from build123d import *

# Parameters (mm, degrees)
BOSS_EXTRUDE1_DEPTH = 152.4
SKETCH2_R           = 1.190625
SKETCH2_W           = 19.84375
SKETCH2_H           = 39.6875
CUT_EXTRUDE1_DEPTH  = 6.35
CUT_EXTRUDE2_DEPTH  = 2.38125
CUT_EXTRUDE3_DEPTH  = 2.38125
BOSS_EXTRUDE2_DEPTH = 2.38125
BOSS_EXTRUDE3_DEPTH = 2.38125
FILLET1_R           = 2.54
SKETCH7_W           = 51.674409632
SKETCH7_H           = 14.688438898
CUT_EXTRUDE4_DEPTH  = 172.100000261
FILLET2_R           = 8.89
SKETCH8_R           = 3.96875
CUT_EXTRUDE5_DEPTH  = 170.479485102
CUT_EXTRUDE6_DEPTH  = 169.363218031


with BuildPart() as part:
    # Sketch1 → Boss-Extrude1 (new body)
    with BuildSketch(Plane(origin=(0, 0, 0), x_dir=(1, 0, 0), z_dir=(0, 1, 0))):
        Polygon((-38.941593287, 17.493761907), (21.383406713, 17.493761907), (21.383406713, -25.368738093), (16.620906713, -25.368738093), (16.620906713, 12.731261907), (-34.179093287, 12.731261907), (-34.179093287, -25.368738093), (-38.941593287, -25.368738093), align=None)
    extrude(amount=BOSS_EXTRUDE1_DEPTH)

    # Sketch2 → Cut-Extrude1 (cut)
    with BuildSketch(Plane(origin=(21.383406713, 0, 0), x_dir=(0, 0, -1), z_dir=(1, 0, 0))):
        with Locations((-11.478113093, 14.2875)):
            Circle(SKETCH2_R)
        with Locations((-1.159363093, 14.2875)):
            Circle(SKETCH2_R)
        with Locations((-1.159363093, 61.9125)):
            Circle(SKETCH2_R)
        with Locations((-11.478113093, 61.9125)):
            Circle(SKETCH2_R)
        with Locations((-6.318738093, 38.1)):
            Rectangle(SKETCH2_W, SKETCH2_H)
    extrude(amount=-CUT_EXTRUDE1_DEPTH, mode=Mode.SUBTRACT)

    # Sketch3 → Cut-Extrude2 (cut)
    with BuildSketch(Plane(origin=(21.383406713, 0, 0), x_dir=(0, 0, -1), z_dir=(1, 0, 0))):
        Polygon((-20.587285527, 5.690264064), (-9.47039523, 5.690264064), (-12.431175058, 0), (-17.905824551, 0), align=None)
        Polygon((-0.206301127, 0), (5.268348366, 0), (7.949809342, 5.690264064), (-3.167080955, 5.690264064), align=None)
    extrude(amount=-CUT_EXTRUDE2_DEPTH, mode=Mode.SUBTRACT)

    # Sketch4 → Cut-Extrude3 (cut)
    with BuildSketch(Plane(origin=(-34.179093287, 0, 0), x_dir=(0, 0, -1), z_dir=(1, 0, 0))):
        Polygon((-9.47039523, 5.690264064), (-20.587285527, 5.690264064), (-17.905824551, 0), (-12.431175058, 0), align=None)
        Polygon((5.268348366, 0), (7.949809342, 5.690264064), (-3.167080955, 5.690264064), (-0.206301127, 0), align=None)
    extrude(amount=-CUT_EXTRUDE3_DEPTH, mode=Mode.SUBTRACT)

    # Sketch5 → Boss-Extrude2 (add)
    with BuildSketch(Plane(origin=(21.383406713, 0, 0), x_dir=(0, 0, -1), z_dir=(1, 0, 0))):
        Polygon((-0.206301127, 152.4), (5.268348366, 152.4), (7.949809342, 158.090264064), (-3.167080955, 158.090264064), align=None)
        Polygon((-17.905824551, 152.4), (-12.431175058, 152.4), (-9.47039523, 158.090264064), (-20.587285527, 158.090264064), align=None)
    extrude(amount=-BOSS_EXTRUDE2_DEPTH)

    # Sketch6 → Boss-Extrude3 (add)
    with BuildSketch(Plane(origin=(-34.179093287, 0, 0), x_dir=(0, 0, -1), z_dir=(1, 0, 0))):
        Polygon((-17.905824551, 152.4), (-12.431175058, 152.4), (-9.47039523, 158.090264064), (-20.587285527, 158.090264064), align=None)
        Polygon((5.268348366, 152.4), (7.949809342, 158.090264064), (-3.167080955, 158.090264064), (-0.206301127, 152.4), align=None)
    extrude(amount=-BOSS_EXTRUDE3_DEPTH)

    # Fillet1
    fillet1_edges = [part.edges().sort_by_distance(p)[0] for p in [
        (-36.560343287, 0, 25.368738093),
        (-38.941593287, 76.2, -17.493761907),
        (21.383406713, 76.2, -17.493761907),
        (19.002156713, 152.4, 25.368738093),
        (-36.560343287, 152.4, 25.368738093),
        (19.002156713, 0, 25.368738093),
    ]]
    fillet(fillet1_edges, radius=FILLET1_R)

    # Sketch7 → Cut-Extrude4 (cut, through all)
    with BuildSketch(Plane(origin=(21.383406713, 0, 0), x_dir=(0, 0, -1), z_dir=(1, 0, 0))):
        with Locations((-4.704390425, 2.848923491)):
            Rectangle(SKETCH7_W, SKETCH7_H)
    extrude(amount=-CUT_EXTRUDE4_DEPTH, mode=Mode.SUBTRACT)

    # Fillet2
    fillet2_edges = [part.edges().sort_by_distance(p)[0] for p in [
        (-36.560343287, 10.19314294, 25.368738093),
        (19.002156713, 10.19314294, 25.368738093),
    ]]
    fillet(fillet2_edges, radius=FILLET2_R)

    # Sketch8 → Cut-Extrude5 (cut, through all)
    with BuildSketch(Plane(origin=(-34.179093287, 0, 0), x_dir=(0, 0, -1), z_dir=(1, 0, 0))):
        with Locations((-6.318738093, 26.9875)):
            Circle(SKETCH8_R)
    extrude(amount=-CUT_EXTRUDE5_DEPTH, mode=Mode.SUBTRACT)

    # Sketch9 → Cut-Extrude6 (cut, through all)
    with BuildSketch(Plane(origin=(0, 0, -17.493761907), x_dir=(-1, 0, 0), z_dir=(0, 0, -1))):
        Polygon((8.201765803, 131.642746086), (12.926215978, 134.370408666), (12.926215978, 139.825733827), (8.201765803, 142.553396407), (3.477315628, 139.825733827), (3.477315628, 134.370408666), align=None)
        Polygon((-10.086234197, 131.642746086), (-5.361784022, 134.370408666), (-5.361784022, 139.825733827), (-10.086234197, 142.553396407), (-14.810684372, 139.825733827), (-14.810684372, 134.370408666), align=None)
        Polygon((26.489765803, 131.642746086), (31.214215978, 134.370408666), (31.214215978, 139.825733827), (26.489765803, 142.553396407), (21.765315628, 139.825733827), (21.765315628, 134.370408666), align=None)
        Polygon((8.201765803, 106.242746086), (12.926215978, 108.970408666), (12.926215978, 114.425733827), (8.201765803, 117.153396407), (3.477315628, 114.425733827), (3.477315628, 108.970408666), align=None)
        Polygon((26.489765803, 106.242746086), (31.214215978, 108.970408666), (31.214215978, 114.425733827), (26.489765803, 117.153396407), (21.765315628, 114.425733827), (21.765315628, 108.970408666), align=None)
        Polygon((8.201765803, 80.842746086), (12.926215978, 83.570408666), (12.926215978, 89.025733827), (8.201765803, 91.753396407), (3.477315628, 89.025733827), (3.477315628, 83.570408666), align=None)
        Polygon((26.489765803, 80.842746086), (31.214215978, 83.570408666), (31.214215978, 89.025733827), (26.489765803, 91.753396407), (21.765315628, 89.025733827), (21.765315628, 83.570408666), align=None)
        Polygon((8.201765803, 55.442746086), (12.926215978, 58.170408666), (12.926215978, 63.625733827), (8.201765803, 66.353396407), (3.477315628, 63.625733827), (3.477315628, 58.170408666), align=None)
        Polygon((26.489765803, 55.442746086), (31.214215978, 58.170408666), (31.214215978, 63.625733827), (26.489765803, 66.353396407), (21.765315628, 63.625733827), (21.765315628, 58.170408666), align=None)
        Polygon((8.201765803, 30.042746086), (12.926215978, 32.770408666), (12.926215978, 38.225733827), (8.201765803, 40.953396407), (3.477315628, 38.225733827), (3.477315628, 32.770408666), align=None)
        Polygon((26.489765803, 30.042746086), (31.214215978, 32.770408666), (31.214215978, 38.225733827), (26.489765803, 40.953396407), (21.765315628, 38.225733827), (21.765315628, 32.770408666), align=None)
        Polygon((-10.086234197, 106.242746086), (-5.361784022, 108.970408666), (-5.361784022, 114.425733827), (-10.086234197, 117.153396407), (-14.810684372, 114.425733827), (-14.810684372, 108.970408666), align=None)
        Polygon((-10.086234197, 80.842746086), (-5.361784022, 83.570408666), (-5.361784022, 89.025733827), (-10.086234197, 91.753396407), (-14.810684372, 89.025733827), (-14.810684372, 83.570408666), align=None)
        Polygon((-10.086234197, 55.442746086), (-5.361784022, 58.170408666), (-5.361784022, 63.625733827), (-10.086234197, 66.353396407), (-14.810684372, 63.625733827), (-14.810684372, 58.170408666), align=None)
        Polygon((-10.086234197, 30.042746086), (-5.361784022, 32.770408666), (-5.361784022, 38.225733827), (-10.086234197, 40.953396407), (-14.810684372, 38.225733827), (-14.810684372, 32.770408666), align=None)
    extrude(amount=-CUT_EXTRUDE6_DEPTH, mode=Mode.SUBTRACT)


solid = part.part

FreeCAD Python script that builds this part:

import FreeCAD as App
import Part
import Sketcher
from FreeCAD import Vector
Q = App.Units.Quantity


def edges_at(feature, points):
    """Names of the edges that pass closest to the given points."""
    edges = feature.Shape.Edges
    near = lambda p: min(range(len(edges)), key=lambda i: edges[i].distToShape(Part.Vertex(*p))[0])
    return sorted({f"Edge{near(p) + 1}" for p in points})


def add_polygon(sketch, points):
    """Adds a closed chain of lines whose ends are joined by coincident constraints."""
    first, n = sketch.GeometryCount, len(points)
    for a, b in zip(points, points[1:] + points[:1]):
        sketch.addGeometry(Part.LineSegment(App.Vector(*a, 0), App.Vector(*b, 0)), False)
    for i in range(n):
        sketch.addConstraint(Sketcher.Constraint("Coincident", first + i, 2, first + (i + 1) % n, 1))

doc = App.newDocument("Part")
body = doc.addObject("PartDesign::Body", "Body")

sketch1 = body.newObject("Sketcher::SketchObject", "Sketch")
sketch1.AttachmentSupport = (doc.getObject("XZ_Plane"), [""])
sketch1.MapMode = "FlatFace"
add_polygon(sketch1, [(21.383407, -17.493762), (-38.941593, -17.493762), (-38.941593, 25.368738), (-34.179093, 25.368738), (-34.179093, -12.731262), (16.620907, -12.731262), (16.620907, 25.368738), (21.383407, 25.368738)])
sketch1.addConstraint([
    Sketcher.Constraint("Horizontal", 0),
    Sketcher.Constraint("Vertical", 1),
    Sketcher.Constraint("Horizontal", 2),
    Sketcher.Constraint("Vertical", 3),
    Sketcher.Constraint("Horizontal", 4),
    Sketcher.Constraint("Vertical", 5),
    Sketcher.Constraint("Horizontal", 6),
    Sketcher.Constraint("Vertical", 7),
    Sketcher.Constraint("Horizontal", 2, 2, 5, 2),
    Sketcher.Constraint("Equal", 2, 6),
    Sketcher.Constraint("DistanceX", 4, 1, 4, 2, Q("2 in")),
    Sketcher.Constraint("DistanceY", 3, 2, 3, 1, Q("1.5 in")),
    Sketcher.Constraint("DistanceX", 0, 2, 0, 1, Q("2.375 in")),
    Sketcher.Constraint("DistanceY", 1, 1, 1, 2, Q("1.6875 in")),
    Sketcher.Constraint("DistanceY", 0, 2, -1, 1, Q("17.493762 mm")),
    Sketcher.Constraint("DistanceX", 0, 2, -1, 1, Q("38.941593 mm")),
])
pad1 = body.newObject("PartDesign::Pad", "Pad")
pad1.Profile = sketch1
pad1.Length = Q("6 in")
pad1.Reversed = True

sketch2 = body.newObject("Sketcher::SketchObject", "Sketch001")
sketch2.AttachmentSupport = (doc.getObject("YZ_Plane"), [""])
sketch2.MapMode = "FlatFace"
sketch2.AttachmentOffset = App.Placement(Vector(0, 0, 21.383407), App.Rotation())
sketch2.addGeometry(Part.Circle(Vector(14.2875, 11.478113, 0), Vector(0, 0, 1), 1.190625), False)
sketch2.addGeometry(Part.Circle(Vector(14.2875, 1.159363, 0), Vector(0, 0, 1), 1.190625), False)
sketch2.addGeometry(Part.Circle(Vector(61.9125, 1.159363, 0), Vector(0, 0, 1), 1.190625), False)
sketch2.addGeometry(Part.Circle(Vector(61.9125, 11.478113, 0), Vector(0, 0, 1), 1.190625), False)
add_polygon(sketch2, [(57.94375, 16.240613), (18.25625, 16.240613), (18.25625, -3.603137), (57.94375, -3.603137)])
sketch2.addConstraint([
    Sketcher.Constraint("Horizontal", 4),
    Sketcher.Constraint("Vertical", 5),
    Sketcher.Constraint("Horizontal", 6),
    Sketcher.Constraint("Vertical", 7),
    Sketcher.Constraint("Equal", 0, 1),
    Sketcher.Constraint("Equal", 1, 2),
    Sketcher.Constraint("Equal", 2, 3),
    Sketcher.Constraint("Horizontal", 1, 3, 2, 3),
    Sketcher.Constraint("Horizontal", 0, 3, 3, 3),
    Sketcher.Constraint("Vertical", 0, 3, 1, 3),
    Sketcher.Constraint("Vertical", 2, 3, 3, 3),
    Sketcher.Constraint("Diameter", 0, Q("0.09375 in")),
    Sketcher.Constraint("DistanceX", 4, 2, 4, 1, Q("1.5625 in")),
    Sketcher.Constraint("DistanceY", 5, 2, 5, 1, Q("0.78125 in")),
    Sketcher.Constraint("DistanceX", -1, 1, 0, 3, Q("0.5625 in")),
    Sketcher.Constraint("DistanceX", -1, 1, 2, 3, Q("2.4375 in")),
    Sketcher.Constraint("DistanceX", -1, 1, 4, 2, Q("0.71875 in")),
    Sketcher.Constraint("DistanceY", 1, 3, 0, 3, Q("0.40625 in")),
    Sketcher.Constraint("DistanceY", 0, 3, 4, 2, Q("0.1875 in")),
    Sketcher.Constraint("DistanceY", -1, 1, 0, 3, Q("11.478113 mm")),
])
pocket1 = body.newObject("PartDesign::Pocket", "Pocket")
pocket1.Profile = sketch2
pocket1.Length = Q("0.25 in")

sketch3 = body.newObject("Sketcher::SketchObject", "Sketch002")
sketch3.AttachmentSupport = (doc.getObject("YZ_Plane"), [""])
sketch3.MapMode = "FlatFace"
sketch3.AttachmentOffset = App.Placement(Vector(0, 0, 21.383407), App.Rotation())
add_polygon(sketch3, [(5.690264, 9.470395), (5.690264, 20.587286), (0, 17.905825), (0, 12.431175)])
add_polygon(sketch3, [(0, 0.206301), (0, -5.268348), (5.690264, -7.949809), (5.690264, 3.167081)])
sketch3.addConstraint([
    Sketcher.Constraint("Vertical", 0),
    Sketcher.Constraint("Vertical", 2),
    Sketcher.Constraint("Vertical", 4),
    Sketcher.Constraint("Vertical", 6),
    Sketcher.Constraint("PointOnObject", 1, 2, -2),
    Sketcher.Constraint("PointOnObject", 4, 2, -2),
    Sketcher.Constraint("Vertical", 3, 2, 5, 2),
    Sketcher.Constraint("Equal", 2, 4),
    Sketcher.Constraint("Equal", 0, 6),
    Sketcher.Constraint("Equal", 1, 5),
    Sketcher.Constraint("DistanceY", 0, 1, 0, 2, Q("11.11689 mm")),
    Sketcher.Constraint("DistanceY", 2, 2, 2, 1, Q("5.474649 mm")),
    Sketcher.Constraint("DistanceY", -1, 1, 7, 2, Q("0.206301 mm")),
    Sketcher.Constraint("Distance", 3, Q("6.414462 mm")),
    Sketcher.Constraint("DistanceY", 5, 2, -1, 1, Q("7.949809 mm")),
    Sketcher.Constraint("DistanceY", -1, 1, 0, 2, Q("20.587286 mm")),
])
pocket2 = body.newObject("PartDesign::Pocket", "Pocket001")
pocket2.Profile = sketch3
pocket2.Length = Q("0.09375 in")

sketch4 = body.newObject("Sketcher::SketchObject", "Sketch003")
sketch4.AttachmentSupport = (doc.getObject("YZ_Plane"), [""])
sketch4.MapMode = "FlatFace"
sketch4.AttachmentOffset = App.Placement(Vector(0, 0, -34.179093), App.Rotation())
add_polygon(sketch4, [(5.690264, 9.470395), (5.690264, 20.587286), (0, 17.905825), (0, 12.431175)])
add_polygon(sketch4, [(0, -5.268348), (5.690264, -7.949809), (5.690264, 3.167081), (0, 0.206301)])
sketch4.addConstraint([
    Sketcher.Constraint("Vertical", 0),
    Sketcher.Constraint("Vertical", 2),
    Sketcher.Constraint("Vertical", 5),
    Sketcher.Constraint("Vertical", 7),
    Sketcher.Constraint("PointOnObject", 1, 2, -2),
    Sketcher.Constraint("PointOnObject", 6, 2, -2),
    Sketcher.Constraint("Vertical", 3, 2, 4, 2),
    Sketcher.Constraint("Equal", 0, 5),
    Sketcher.Constraint("Equal", 2, 7),
    Sketcher.Constraint("Equal", 1, 4),
    Sketcher.Constraint("DistanceY", 0, 1, 0, 2, Q("11.11689 mm")),
    Sketcher.Constraint("DistanceY", 2, 2, 2, 1, Q("5.474649 mm")),
    Sketcher.Constraint("DistanceY", -1, 1, 6, 2, Q("0.206301 mm")),
    Sketcher.Constraint("Distance", 3, Q("6.414462 mm")),
    Sketcher.Constraint("DistanceY", 4, 2, -1, 1, Q("7.949809 mm")),
    Sketcher.Constraint("DistanceY", -1, 1, 0, 2, Q("20.587286 mm")),
])
pocket3 = body.newObject("PartDesign::Pocket", "Pocket002")
pocket3.Profile = sketch4
pocket3.Length = Q("0.09375 in")

sketch5 = body.newObject("Sketcher::SketchObject", "Sketch004")
sketch5.AttachmentSupport = (doc.getObject("YZ_Plane"), [""])
sketch5.MapMode = "FlatFace"
sketch5.AttachmentOffset = App.Placement(Vector(0, 0, 21.383407), App.Rotation())
add_polygon(sketch5, [(152.4, 0.206301), (152.4, -5.268348), (158.090264, -7.949809), (158.090264, 3.167081)])
add_polygon(sketch5, [(152.4, 17.905825), (152.4, 12.431175), (158.090264, 9.470395), (158.090264, 20.587286)])
sketch5.addConstraint([
    Sketcher.Constraint("Vertical", 0),
    Sketcher.Constraint("Vertical", 2),
    Sketcher.Constraint("Vertical", 4),
    Sketcher.Constraint("Vertical", 6),
    Sketcher.Constraint("Vertical", 3, 2, 4, 2),
    Sketcher.Constraint("Vertical", 2, 2, 5, 2),
    Sketcher.Constraint("Equal", 0, 4),
    Sketcher.Constraint("Equal", 2, 6),
    Sketcher.Constraint("Equal", 3, 5),
    Sketcher.Constraint("DistanceX", -1, 1, 0, 2, Q("6 in")),
    Sketcher.Constraint("DistanceY", 0, 2, 0, 1, Q("5.474649 mm")),
    Sketcher.Constraint("DistanceY", 2, 1, 2, 2, Q("11.11689 mm")),
    Sketcher.Constraint("DistanceY", -1, 1, 3, 2, Q("0.206301 mm")),
    Sketcher.Constraint("Distance", 3, Q("6.414462 mm")),
    Sketcher.Constraint("DistanceY", 1, 2, -1, 1, Q("7.949809 mm")),
    Sketcher.Constraint("DistanceY", -1, 1, 4, 2, Q("12.431175 mm")),
])
pad2 = body.newObject("PartDesign::Pad", "Pad001")
pad2.Profile = sketch5
pad2.Length = Q("0.09375 in")
pad2.Reversed = True

sketch6 = body.newObject("Sketcher::SketchObject", "Sketch005")
sketch6.AttachmentSupport = (doc.getObject("YZ_Plane"), [""])
sketch6.MapMode = "FlatFace"
sketch6.AttachmentOffset = App.Placement(Vector(0, 0, -34.179093), App.Rotation())
add_polygon(sketch6, [(152.4, 17.905825), (152.4, 12.431175), (158.090264, 9.470395), (158.090264, 20.587286)])
add_polygon(sketch6, [(152.4, -5.268348), (158.090264, -7.949809), (158.090264, 3.167081), (152.4, 0.206301)])
sketch6.addConstraint([
    Sketcher.Constraint("Vertical", 0),
    Sketcher.Constraint("Vertical", 2),
    Sketcher.Constraint("Vertical", 5),
    Sketcher.Constraint("Vertical", 7),
    Sketcher.Constraint("Vertical", 2, 2, 4, 2),
    Sketcher.Constraint("Vertical", 3, 2, 6, 2),
    Sketcher.Constraint("Equal", 2, 5),
    Sketcher.Constraint("Equal", 0, 7),
    Sketcher.Constraint("Equal", 3, 4),
    Sketcher.Constraint("DistanceX", -1, 1, 0, 2, Q("6 in")),
    Sketcher.Constraint("DistanceY", 0, 2, 0, 1, Q("5.474649 mm")),
    Sketcher.Constraint("DistanceY", 2, 1, 2, 2, Q("11.11689 mm")),
    Sketcher.Constraint("DistanceY", -1, 1, 6, 2, Q("0.206301 mm")),
    Sketcher.Constraint("Distance", 1, Q("6.414462 mm")),
    Sketcher.Constraint("DistanceY", 4, 2, -1, 1, Q("7.949809 mm")),
    Sketcher.Constraint("DistanceY", -1, 1, 0, 2, Q("12.431175 mm")),
])
pad3 = body.newObject("PartDesign::Pad", "Pad002")
pad3.Profile = sketch6
pad3.Length = Q("0.09375 in")
pad3.Reversed = True
doc.recompute()

fillet = body.newObject("PartDesign::Fillet", "Fillet")
fillet.Base = (pad3, edges_at(pad3, [
    (-36.56, 0, 25.369),
    (-38.942, 76.2, -17.494),
    (21.383, 76.2, -17.494),
    (19.002, 152.4, 25.369),
    (-36.56, 152.4, 25.369),
    (19.002, 0, 25.369),
]))
fillet.Radius = Q("0.1 in")

sketch7 = body.newObject("Sketcher::SketchObject", "Sketch006")
sketch7.AttachmentSupport = (doc.getObject("YZ_Plane"), [""])
sketch7.MapMode = "FlatFace"
sketch7.AttachmentOffset = App.Placement(Vector(0, 0, 21.383407), App.Rotation())
add_polygon(sketch7, [(10.193143, 30.541595), (-4.495296, 30.541595), (-4.495296, -21.132814), (10.193143, -21.132814)])
sketch7.addConstraint([
    Sketcher.Constraint("Horizontal", 0),
    Sketcher.Constraint("Vertical", 1),
    Sketcher.Constraint("Horizontal", 2),
    Sketcher.Constraint("Vertical", 3),
    Sketcher.Constraint("DistanceX", 0, 2, 0, 1, Q("14.688439 mm")),
    Sketcher.Constraint("DistanceY", 1, 2, 1, 1, Q("51.67441 mm")),
    Sketcher.Constraint("DistanceX", 0, 2, -1, 1, Q("4.495296 mm")),
    Sketcher.Constraint("DistanceY", -1, 1, 0, 2, Q("30.541595 mm")),
])
pocket4 = body.newObject("PartDesign::Pocket", "Pocket003")
pocket4.Profile = sketch7
pocket4.Type = "ThroughAll"
doc.recompute()

fillet2 = body.newObject("PartDesign::Fillet", "Fillet001")
fillet2.Base = (pocket4, edges_at(pocket4, [(-36.56, 10.193, 25.369), (19.002, 10.193, 25.369)]))
fillet2.Radius = Q("0.35 in")

sketch8 = body.newObject("Sketcher::SketchObject", "Sketch007")
sketch8.AttachmentSupport = (doc.getObject("YZ_Plane"), [""])
sketch8.MapMode = "FlatFace"
sketch8.AttachmentOffset = App.Placement(Vector(0, 0, -34.179093), App.Rotation())
sketch8.addGeometry(Part.Circle(Vector(26.9875, 6.318738, 0), Vector(0, 0, 1), 3.96875), False)
sketch8.addConstraint([
    Sketcher.Constraint("Diameter", 0, Q("0.3125 in")),
    Sketcher.Constraint("DistanceX", -1, 1, 0, 3, Q("1.0625 in")),
    Sketcher.Constraint("DistanceY", -1, 1, 0, 3, Q("6.318738 mm")),
])
pocket5 = body.newObject("PartDesign::Pocket", "Pocket004")
pocket5.Profile = sketch8
pocket5.Type = "ThroughAll"

sketch9 = body.newObject("Sketcher::SketchObject", "Sketch008")
sketch9.AttachmentSupport = (doc.getObject("XY_Plane"), [""])
sketch9.MapMode = "FlatFace"
sketch9.AttachmentOffset = App.Placement(Vector(0, 0, -17.493762), App.Rotation())
add_polygon(sketch9, [(-8.201766, 131.642746), (-12.926216, 134.370409), (-12.926216, 139.825734), (-8.201766, 142.553396), (-3.477316, 139.825734), (-3.477316, 134.370409)])
add_polygon(sketch9, [(10.086234, 131.642746), (5.361784, 134.370409), (5.361784, 139.825734), (10.086234, 142.553396), (14.810684, 139.825734), (14.810684, 134.370409)])
add_polygon(sketch9, [(-26.489766, 131.642746), (-31.214216, 134.370409), (-31.214216, 139.825734), (-26.489766, 142.553396), (-21.765316, 139.825734), (-21.765316, 134.370409)])
add_polygon(sketch9, [(-8.201766, 106.242746), (-12.926216, 108.970409), (-12.926216, 114.425734), (-8.201766, 117.153396), (-3.477316, 114.425734), (-3.477316, 108.970409)])
add_polygon(sketch9, [(-26.489766, 106.242746), (-31.214216, 108.970409), (-31.214216, 114.425734), (-26.489766, 117.153396), (-21.765316, 114.425734), (-21.765316, 108.970409)])
add_polygon(sketch9, [(-8.201766, 80.842746), (-12.926216, 83.570409), (-12.926216, 89.025734), (-8.201766, 91.753396), (-3.477316, 89.025734), (-3.477316, 83.570409)])
add_polygon(sketch9, [(-26.489766, 80.842746), (-31.214216, 83.570409), (-31.214216, 89.025734), (-26.489766, 91.753396), (-21.765316, 89.025734), (-21.765316, 83.570409)])
add_polygon(sketch9, [(-8.201766, 55.442746), (-12.926216, 58.170409), (-12.926216, 63.625734), (-8.201766, 66.353396), (-3.477316, 63.625734), (-3.477316, 58.170409)])
add_polygon(sketch9, [(-26.489766, 55.442746), (-31.214216, 58.170409), (-31.214216, 63.625734), (-26.489766, 66.353396), (-21.765316, 63.625734), (-21.765316, 58.170409)])
add_polygon(sketch9, [(-8.201766, 30.042746), (-12.926216, 32.770409), (-12.926216, 38.225734), (-8.201766, 40.953396), (-3.477316, 38.225734), (-3.477316, 32.770409)])
add_polygon(sketch9, [(-26.489766, 30.042746), (-31.214216, 32.770409), (-31.214216, 38.225734), (-26.489766, 40.953396), (-21.765316, 38.225734), (-21.765316, 32.770409)])
add_polygon(sketch9, [(10.086234, 106.242746), (5.361784, 108.970409), (5.361784, 114.425734), (10.086234, 117.153396), (14.810684, 114.425734), (14.810684, 108.970409)])
add_polygon(sketch9, [(10.086234, 80.842746), (5.361784, 83.570409), (5.361784, 89.025734), (10.086234, 91.753396), (14.810684, 89.025734), (14.810684, 83.570409)])
add_polygon(sketch9, [(10.086234, 55.442746), (5.361784, 58.170409), (5.361784, 63.625734), (10.086234, 66.353396), (14.810684, 63.625734), (14.810684, 58.170409)])
add_polygon(sketch9, [(10.086234, 30.042746), (5.361784, 32.770409), (5.361784, 38.225734), (10.086234, 40.953396), (14.810684, 38.225734), (14.810684, 32.770409)])
sketch9.addConstraint([
    Sketcher.Constraint("Vertical", 1),
    Sketcher.Constraint("Vertical", 4),
    Sketcher.Constraint("Vertical", 7),
    Sketcher.Constraint("Vertical", 10),
    Sketcher.Constraint("Vertical", 13),
    Sketcher.Constraint("Vertical", 16),
    Sketcher.Constraint("Vertical", 19),
    Sketcher.Constraint("Vertical", 22),
    Sketcher.Constraint("Vertical", 25),
    Sketcher.Constraint("Vertical", 28),
    Sketcher.Constraint("Vertical", 31),
    Sketcher.Constraint("Vertical", 34),
    Sketcher.Constraint("Vertical", 37),
    Sketcher.Constraint("Vertical", 40),
    Sketcher.Constraint("Vertical", 43),
    Sketcher.Constraint("Vertical", 46),
    Sketcher.Constraint("Vertical", 49),
    Sketcher.Constraint("Vertical", 52),
    Sketcher.Constraint("Vertical", 55),
    Sketcher.Constraint("Vertical", 58),
    Sketcher.Constraint("Vertical", 61),
    Sketcher.Constraint("Vertical", 64),
    Sketcher.Constraint("Vertical", 67),
    Sketcher.Constraint("Vertical", 70),
    Sketcher.Constraint("Vertical", 73),
    Sketcher.Constraint("Vertical", 76),
    Sketcher.Constraint("Vertical", 79),
    Sketcher.Constraint("Vertical", 82),
    Sketcher.Constraint("Vertical", 85),
    Sketcher.Constraint("Vertical", 88),
    Sketcher.Constraint("Parallel", 0, 3),
    Sketcher.Constraint("Parallel", 2, 5),
    Sketcher.Constraint("Parallel", 3, 6),
    Sketcher.Constraint("Parallel", 5, 8),
    Sketcher.Constraint("Parallel", 6, 9),
    Sketcher.Constraint("Parallel", 8, 11),
    Sketcher.Constraint("Parallel", 9, 12),
    Sketcher.Constraint("Parallel", 11, 14),
    Sketcher.Constraint("Parallel", 12, 15),
    Sketcher.Constraint("Parallel", 14, 17),
    Sketcher.Constraint("Parallel", 15, 18),
    Sketcher.Constraint("Parallel", 17, 20),
    Sketcher.Constraint("Parallel", 18, 21),
    Sketcher.Constraint("Parallel", 20, 23),
    Sketcher.Constraint("Parallel", 21, 24),
    Sketcher.Constraint("Parallel", 23, 26),
    Sketcher.Constraint("Parallel", 24, 27),
    Sketcher.Constraint("Parallel", 26, 29),
    Sketcher.Constraint("Parallel", 27, 30),
    Sketcher.Constraint("Parallel", 29, 32),
    Sketcher.Constraint("Parallel", 30, 33),
    Sketcher.Constraint("Parallel", 32, 35),
    Sketcher.Constraint("Parallel", 33, 36),
    Sketcher.Constraint("Parallel", 35, 38),
    Sketcher.Constraint("Parallel", 36, 39),
    Sketcher.Constraint("Parallel", 38, 41),
    Sketcher.Constraint("Parallel", 39, 42),
    Sketcher.Constraint("Parallel", 41, 44),
    Sketcher.Constraint("Parallel", 42, 45),
    Sketcher.Constraint("Parallel", 44, 47),
    Sketcher.Constraint("Parallel", 45, 48),
    Sketcher.Constraint("Parallel", 47, 50),
    Sketcher.Constraint("Parallel", 48, 51),
    Sketcher.Constraint("Parallel", 50, 53),
    Sketcher.Constraint("Parallel", 51, 54),
    Sketcher.Constraint("Parallel", 53, 56),
    Sketcher.Constraint("Parallel", 54, 57),
    Sketcher.Constraint("Parallel", 56, 59),
    Sketcher.Constraint("Parallel", 57, 60),
    Sketcher.Constraint("Parallel", 59, 62),
    Sketcher.Constraint("Parallel", 60, 63),
    Sketcher.Constraint("Parallel", 62, 65),
    Sketcher.Constraint("Parallel", 63, 66),
    Sketcher.Constraint("Parallel", 65, 68),
    Sketcher.Constraint("Parallel", 66, 69),
    Sketcher.Constraint("Parallel", 68, 71),
    Sketcher.Constraint("Parallel", 69, 72),
    Sketcher.Constraint("Parallel", 71, 74),
    Sketcher.Constraint("Parallel", 72, 75),
    Sketcher.Constraint("Parallel", 74, 77),
    Sketcher.Constraint("Parallel", 75, 78),
    Sketcher.Constraint("Parallel", 77, 80),
    Sketcher.Constraint("Parallel", 78, 81),
    Sketcher.Constraint("Parallel", 80, 83),
    Sketcher.Constraint("Parallel", 81, 84),
    Sketcher.Constraint("Parallel", 83, 86),
    Sketcher.Constraint("Parallel", 84, 87),
    Sketcher.Constraint("Parallel", 86, 89),
    Sketcher.Constraint("Horizontal", 1, 2, 3, 2),
    Sketcher.Constraint("Horizontal", 0, 2, 4, 2),
    Sketcher.Constraint("Horizontal", 4, 2, 6, 2),
    Sketcher.Constraint("Horizontal", 3, 2, 7, 2),
    Sketcher.Constraint("Horizontal", 2, 2, 8, 2),
    Sketcher.Constraint("Horizontal", 7, 2, 9, 2),
    Sketcher.Constraint("Horizontal", 6, 2, 10, 2),
    Sketcher.Constraint("Horizontal", 10, 2, 12, 2),
    Sketcher.Constraint("Horizontal", 9, 2, 13, 2),
    Sketcher.Constraint("Horizontal", 8, 2, 14, 2),
    Sketcher.Constraint("Horizontal", 13, 2, 15, 2),
    Sketcher.Constraint("Horizontal", 12, 2, 16, 2),
    Sketcher.Constraint("Horizontal", 19, 2, 21, 2),
    Sketcher.Constraint("Horizontal", 18, 2, 22, 2),
    Sketcher.Constraint("Horizontal", 22, 2, 24, 2),
    Sketcher.Constraint("Horizontal", 21, 2, 25, 2),
    Sketcher.Constraint("Horizontal", 20, 2, 26, 2),
    Sketcher.Constraint("Horizontal", 25, 2, 27, 2),
    Sketcher.Constraint("Horizontal", 24, 2, 28, 2),
    Sketcher.Constraint("Horizontal", 31, 2, 33, 2),
    Sketcher.Constraint("Horizontal", 30, 2, 34, 2),
    Sketcher.Constraint("Horizontal", 34, 2, 36, 2),
    Sketcher.Constraint("Horizontal", 33, 2, 37, 2),
    Sketcher.Constraint("Horizontal", 32, 2, 38, 2),
    Sketcher.Constraint("Horizontal", 37, 2, 39, 2),
    Sketcher.Constraint("Horizontal", 36, 2, 40, 2),
    Sketcher.Constraint("Horizontal", 43, 2, 45, 2),
    Sketcher.Constraint("Horizontal", 42, 2, 46, 2),
    Sketcher.Constraint("Horizontal", 46, 2, 48, 2),
    Sketcher.Constraint("Horizontal", 45, 2, 49, 2),
    Sketcher.Constraint("Horizontal", 44, 2, 50, 2),
    Sketcher.Constraint("Horizontal", 49, 2, 51, 2),
    Sketcher.Constraint("Horizontal", 48, 2, 52, 2),
    Sketcher.Constraint("Horizontal", 55, 2, 57, 2),
    Sketcher.Constraint("Horizontal", 54, 2, 58, 2),
    Sketcher.Constraint("Horizontal", 58, 2, 60, 2),
    Sketcher.Constraint("Horizontal", 57, 2, 61, 2),
    Sketcher.Constraint("Horizontal", 56, 2, 62, 2),
    Sketcher.Constraint("Horizontal", 61, 2, 63, 2),
    Sketcher.Constraint("Horizontal", 60, 2, 64, 2),
    Sketcher.Constraint("Horizontal", 28, 2, 66, 2),
    Sketcher.Constraint("Horizontal", 27, 2, 67, 2),
    Sketcher.Constraint("Horizontal", 26, 2, 68, 2),
    Sketcher.Constraint("Horizontal", 67, 2, 69, 2),
    Sketcher.Constraint("Horizontal", 66, 2, 70, 2),
    Sketcher.Constraint("Horizontal", 40, 2, 72, 2),
    Sketcher.Constraint("Horizontal", 39, 2, 73, 2),
    Sketcher.Constraint("Horizontal", 38, 2, 74, 2),
    Sketcher.Constraint("Horizontal", 73, 2, 75, 2),
    Sketcher.Constraint("Horizontal", 72, 2, 76, 2),
    Sketcher.Constraint("Horizontal", 52, 2, 78, 2),
    Sketcher.Constraint("Horizontal", 51, 2, 79, 2),
    Sketcher.Constraint("Horizontal", 50, 2, 80, 2),
    Sketcher.Constraint("Horizontal", 79, 2, 81, 2),
    Sketcher.Constraint("Horizontal", 78, 2, 82, 2),
    Sketcher.Constraint("Horizontal", 64, 2, 84, 2),
    Sketcher.Constraint("Horizontal", 63, 2, 85, 2),
    Sketcher.Constraint("Horizontal", 62, 2, 86, 2),
    Sketcher.Constraint("Horizontal", 85, 2, 87, 2),
    Sketcher.Constraint("Horizontal", 84, 2, 88, 2),
    Sketcher.Constraint("Vertical", 2, 2, 5, 2),
    Sketcher.Constraint("Vertical", 1, 2, 18, 2),
    Sketcher.Constraint("Vertical", 5, 2, 20, 2),
    Sketcher.Constraint("Vertical", 13, 2, 24, 2),
    Sketcher.Constraint("Vertical", 19, 2, 30, 2),
    Sketcher.Constraint("Vertical", 23, 2, 32, 2),
    Sketcher.Constraint("Vertical", 25, 2, 36, 2),
    Sketcher.Constraint("Vertical", 31, 2, 42, 2),
    Sketcher.Constraint("Vertical", 35, 2, 44, 2),
    Sketcher.Constraint("Vertical", 37, 2, 48, 2),
    Sketcher.Constraint("Vertical", 43, 2, 54, 2),
    Sketcher.Constraint("Vertical", 47, 2, 56, 2),
    Sketcher.Constraint("Vertical", 49, 2, 60, 2),
    Sketcher.Constraint("Vertical", 7, 2, 66, 2),
    Sketcher.Constraint("Vertical", 67, 2, 72, 2),
    Sketcher.Constraint("Vertical", 73, 2, 78, 2),
    Sketcher.Constraint("Vertical", 79, 2, 84, 2),
    Sketcher.Constraint("Equal", 16, 19),
    Sketcher.Constraint("Equal", 28, 31),
    Sketcher.Constraint("Equal", 40, 43),
    Sketcher.Constraint("Equal", 52, 55),
    Sketcher.Constraint("Angle", 0, Q("150 deg")),
    Sketcher.Constraint("DistanceY", 1, 1, 1, 2, Q("5.455325 mm")),
    Sketcher.Constraint("DistanceY", -1, 1, 0, 2, Q("134.370409 mm")),
    Sketcher.Constraint("DistanceY", -1, 1, 18, 2, Q("108.970409 mm")),
    Sketcher.Constraint("DistanceY", -1, 1, 30, 2, Q("83.570409 mm")),
    Sketcher.Constraint("DistanceY", -1, 1, 42, 2, Q("58.170409 mm")),
    Sketcher.Constraint("DistanceY", -1, 1, 54, 2, Q("32.770409 mm")),
    Sketcher.Constraint("Distance", 0, Q("5.455325 mm")),
    Sketcher.Constraint("DistanceX", 0, 2, -1, 1, Q("12.926216 mm")),
    Sketcher.Constraint("DistanceX", -1, 1, 6, 2, Q("5.361784 mm")),
    Sketcher.Constraint("DistanceX", 12, 2, -1, 1, Q("31.214216 mm")),
])
pocket6 = body.newObject("PartDesign::Pocket", "Pocket005")
pocket6.Profile = sketch9
pocket6.Type = "ThroughAll"
pocket6.Reversed = True

doc.recompute()
